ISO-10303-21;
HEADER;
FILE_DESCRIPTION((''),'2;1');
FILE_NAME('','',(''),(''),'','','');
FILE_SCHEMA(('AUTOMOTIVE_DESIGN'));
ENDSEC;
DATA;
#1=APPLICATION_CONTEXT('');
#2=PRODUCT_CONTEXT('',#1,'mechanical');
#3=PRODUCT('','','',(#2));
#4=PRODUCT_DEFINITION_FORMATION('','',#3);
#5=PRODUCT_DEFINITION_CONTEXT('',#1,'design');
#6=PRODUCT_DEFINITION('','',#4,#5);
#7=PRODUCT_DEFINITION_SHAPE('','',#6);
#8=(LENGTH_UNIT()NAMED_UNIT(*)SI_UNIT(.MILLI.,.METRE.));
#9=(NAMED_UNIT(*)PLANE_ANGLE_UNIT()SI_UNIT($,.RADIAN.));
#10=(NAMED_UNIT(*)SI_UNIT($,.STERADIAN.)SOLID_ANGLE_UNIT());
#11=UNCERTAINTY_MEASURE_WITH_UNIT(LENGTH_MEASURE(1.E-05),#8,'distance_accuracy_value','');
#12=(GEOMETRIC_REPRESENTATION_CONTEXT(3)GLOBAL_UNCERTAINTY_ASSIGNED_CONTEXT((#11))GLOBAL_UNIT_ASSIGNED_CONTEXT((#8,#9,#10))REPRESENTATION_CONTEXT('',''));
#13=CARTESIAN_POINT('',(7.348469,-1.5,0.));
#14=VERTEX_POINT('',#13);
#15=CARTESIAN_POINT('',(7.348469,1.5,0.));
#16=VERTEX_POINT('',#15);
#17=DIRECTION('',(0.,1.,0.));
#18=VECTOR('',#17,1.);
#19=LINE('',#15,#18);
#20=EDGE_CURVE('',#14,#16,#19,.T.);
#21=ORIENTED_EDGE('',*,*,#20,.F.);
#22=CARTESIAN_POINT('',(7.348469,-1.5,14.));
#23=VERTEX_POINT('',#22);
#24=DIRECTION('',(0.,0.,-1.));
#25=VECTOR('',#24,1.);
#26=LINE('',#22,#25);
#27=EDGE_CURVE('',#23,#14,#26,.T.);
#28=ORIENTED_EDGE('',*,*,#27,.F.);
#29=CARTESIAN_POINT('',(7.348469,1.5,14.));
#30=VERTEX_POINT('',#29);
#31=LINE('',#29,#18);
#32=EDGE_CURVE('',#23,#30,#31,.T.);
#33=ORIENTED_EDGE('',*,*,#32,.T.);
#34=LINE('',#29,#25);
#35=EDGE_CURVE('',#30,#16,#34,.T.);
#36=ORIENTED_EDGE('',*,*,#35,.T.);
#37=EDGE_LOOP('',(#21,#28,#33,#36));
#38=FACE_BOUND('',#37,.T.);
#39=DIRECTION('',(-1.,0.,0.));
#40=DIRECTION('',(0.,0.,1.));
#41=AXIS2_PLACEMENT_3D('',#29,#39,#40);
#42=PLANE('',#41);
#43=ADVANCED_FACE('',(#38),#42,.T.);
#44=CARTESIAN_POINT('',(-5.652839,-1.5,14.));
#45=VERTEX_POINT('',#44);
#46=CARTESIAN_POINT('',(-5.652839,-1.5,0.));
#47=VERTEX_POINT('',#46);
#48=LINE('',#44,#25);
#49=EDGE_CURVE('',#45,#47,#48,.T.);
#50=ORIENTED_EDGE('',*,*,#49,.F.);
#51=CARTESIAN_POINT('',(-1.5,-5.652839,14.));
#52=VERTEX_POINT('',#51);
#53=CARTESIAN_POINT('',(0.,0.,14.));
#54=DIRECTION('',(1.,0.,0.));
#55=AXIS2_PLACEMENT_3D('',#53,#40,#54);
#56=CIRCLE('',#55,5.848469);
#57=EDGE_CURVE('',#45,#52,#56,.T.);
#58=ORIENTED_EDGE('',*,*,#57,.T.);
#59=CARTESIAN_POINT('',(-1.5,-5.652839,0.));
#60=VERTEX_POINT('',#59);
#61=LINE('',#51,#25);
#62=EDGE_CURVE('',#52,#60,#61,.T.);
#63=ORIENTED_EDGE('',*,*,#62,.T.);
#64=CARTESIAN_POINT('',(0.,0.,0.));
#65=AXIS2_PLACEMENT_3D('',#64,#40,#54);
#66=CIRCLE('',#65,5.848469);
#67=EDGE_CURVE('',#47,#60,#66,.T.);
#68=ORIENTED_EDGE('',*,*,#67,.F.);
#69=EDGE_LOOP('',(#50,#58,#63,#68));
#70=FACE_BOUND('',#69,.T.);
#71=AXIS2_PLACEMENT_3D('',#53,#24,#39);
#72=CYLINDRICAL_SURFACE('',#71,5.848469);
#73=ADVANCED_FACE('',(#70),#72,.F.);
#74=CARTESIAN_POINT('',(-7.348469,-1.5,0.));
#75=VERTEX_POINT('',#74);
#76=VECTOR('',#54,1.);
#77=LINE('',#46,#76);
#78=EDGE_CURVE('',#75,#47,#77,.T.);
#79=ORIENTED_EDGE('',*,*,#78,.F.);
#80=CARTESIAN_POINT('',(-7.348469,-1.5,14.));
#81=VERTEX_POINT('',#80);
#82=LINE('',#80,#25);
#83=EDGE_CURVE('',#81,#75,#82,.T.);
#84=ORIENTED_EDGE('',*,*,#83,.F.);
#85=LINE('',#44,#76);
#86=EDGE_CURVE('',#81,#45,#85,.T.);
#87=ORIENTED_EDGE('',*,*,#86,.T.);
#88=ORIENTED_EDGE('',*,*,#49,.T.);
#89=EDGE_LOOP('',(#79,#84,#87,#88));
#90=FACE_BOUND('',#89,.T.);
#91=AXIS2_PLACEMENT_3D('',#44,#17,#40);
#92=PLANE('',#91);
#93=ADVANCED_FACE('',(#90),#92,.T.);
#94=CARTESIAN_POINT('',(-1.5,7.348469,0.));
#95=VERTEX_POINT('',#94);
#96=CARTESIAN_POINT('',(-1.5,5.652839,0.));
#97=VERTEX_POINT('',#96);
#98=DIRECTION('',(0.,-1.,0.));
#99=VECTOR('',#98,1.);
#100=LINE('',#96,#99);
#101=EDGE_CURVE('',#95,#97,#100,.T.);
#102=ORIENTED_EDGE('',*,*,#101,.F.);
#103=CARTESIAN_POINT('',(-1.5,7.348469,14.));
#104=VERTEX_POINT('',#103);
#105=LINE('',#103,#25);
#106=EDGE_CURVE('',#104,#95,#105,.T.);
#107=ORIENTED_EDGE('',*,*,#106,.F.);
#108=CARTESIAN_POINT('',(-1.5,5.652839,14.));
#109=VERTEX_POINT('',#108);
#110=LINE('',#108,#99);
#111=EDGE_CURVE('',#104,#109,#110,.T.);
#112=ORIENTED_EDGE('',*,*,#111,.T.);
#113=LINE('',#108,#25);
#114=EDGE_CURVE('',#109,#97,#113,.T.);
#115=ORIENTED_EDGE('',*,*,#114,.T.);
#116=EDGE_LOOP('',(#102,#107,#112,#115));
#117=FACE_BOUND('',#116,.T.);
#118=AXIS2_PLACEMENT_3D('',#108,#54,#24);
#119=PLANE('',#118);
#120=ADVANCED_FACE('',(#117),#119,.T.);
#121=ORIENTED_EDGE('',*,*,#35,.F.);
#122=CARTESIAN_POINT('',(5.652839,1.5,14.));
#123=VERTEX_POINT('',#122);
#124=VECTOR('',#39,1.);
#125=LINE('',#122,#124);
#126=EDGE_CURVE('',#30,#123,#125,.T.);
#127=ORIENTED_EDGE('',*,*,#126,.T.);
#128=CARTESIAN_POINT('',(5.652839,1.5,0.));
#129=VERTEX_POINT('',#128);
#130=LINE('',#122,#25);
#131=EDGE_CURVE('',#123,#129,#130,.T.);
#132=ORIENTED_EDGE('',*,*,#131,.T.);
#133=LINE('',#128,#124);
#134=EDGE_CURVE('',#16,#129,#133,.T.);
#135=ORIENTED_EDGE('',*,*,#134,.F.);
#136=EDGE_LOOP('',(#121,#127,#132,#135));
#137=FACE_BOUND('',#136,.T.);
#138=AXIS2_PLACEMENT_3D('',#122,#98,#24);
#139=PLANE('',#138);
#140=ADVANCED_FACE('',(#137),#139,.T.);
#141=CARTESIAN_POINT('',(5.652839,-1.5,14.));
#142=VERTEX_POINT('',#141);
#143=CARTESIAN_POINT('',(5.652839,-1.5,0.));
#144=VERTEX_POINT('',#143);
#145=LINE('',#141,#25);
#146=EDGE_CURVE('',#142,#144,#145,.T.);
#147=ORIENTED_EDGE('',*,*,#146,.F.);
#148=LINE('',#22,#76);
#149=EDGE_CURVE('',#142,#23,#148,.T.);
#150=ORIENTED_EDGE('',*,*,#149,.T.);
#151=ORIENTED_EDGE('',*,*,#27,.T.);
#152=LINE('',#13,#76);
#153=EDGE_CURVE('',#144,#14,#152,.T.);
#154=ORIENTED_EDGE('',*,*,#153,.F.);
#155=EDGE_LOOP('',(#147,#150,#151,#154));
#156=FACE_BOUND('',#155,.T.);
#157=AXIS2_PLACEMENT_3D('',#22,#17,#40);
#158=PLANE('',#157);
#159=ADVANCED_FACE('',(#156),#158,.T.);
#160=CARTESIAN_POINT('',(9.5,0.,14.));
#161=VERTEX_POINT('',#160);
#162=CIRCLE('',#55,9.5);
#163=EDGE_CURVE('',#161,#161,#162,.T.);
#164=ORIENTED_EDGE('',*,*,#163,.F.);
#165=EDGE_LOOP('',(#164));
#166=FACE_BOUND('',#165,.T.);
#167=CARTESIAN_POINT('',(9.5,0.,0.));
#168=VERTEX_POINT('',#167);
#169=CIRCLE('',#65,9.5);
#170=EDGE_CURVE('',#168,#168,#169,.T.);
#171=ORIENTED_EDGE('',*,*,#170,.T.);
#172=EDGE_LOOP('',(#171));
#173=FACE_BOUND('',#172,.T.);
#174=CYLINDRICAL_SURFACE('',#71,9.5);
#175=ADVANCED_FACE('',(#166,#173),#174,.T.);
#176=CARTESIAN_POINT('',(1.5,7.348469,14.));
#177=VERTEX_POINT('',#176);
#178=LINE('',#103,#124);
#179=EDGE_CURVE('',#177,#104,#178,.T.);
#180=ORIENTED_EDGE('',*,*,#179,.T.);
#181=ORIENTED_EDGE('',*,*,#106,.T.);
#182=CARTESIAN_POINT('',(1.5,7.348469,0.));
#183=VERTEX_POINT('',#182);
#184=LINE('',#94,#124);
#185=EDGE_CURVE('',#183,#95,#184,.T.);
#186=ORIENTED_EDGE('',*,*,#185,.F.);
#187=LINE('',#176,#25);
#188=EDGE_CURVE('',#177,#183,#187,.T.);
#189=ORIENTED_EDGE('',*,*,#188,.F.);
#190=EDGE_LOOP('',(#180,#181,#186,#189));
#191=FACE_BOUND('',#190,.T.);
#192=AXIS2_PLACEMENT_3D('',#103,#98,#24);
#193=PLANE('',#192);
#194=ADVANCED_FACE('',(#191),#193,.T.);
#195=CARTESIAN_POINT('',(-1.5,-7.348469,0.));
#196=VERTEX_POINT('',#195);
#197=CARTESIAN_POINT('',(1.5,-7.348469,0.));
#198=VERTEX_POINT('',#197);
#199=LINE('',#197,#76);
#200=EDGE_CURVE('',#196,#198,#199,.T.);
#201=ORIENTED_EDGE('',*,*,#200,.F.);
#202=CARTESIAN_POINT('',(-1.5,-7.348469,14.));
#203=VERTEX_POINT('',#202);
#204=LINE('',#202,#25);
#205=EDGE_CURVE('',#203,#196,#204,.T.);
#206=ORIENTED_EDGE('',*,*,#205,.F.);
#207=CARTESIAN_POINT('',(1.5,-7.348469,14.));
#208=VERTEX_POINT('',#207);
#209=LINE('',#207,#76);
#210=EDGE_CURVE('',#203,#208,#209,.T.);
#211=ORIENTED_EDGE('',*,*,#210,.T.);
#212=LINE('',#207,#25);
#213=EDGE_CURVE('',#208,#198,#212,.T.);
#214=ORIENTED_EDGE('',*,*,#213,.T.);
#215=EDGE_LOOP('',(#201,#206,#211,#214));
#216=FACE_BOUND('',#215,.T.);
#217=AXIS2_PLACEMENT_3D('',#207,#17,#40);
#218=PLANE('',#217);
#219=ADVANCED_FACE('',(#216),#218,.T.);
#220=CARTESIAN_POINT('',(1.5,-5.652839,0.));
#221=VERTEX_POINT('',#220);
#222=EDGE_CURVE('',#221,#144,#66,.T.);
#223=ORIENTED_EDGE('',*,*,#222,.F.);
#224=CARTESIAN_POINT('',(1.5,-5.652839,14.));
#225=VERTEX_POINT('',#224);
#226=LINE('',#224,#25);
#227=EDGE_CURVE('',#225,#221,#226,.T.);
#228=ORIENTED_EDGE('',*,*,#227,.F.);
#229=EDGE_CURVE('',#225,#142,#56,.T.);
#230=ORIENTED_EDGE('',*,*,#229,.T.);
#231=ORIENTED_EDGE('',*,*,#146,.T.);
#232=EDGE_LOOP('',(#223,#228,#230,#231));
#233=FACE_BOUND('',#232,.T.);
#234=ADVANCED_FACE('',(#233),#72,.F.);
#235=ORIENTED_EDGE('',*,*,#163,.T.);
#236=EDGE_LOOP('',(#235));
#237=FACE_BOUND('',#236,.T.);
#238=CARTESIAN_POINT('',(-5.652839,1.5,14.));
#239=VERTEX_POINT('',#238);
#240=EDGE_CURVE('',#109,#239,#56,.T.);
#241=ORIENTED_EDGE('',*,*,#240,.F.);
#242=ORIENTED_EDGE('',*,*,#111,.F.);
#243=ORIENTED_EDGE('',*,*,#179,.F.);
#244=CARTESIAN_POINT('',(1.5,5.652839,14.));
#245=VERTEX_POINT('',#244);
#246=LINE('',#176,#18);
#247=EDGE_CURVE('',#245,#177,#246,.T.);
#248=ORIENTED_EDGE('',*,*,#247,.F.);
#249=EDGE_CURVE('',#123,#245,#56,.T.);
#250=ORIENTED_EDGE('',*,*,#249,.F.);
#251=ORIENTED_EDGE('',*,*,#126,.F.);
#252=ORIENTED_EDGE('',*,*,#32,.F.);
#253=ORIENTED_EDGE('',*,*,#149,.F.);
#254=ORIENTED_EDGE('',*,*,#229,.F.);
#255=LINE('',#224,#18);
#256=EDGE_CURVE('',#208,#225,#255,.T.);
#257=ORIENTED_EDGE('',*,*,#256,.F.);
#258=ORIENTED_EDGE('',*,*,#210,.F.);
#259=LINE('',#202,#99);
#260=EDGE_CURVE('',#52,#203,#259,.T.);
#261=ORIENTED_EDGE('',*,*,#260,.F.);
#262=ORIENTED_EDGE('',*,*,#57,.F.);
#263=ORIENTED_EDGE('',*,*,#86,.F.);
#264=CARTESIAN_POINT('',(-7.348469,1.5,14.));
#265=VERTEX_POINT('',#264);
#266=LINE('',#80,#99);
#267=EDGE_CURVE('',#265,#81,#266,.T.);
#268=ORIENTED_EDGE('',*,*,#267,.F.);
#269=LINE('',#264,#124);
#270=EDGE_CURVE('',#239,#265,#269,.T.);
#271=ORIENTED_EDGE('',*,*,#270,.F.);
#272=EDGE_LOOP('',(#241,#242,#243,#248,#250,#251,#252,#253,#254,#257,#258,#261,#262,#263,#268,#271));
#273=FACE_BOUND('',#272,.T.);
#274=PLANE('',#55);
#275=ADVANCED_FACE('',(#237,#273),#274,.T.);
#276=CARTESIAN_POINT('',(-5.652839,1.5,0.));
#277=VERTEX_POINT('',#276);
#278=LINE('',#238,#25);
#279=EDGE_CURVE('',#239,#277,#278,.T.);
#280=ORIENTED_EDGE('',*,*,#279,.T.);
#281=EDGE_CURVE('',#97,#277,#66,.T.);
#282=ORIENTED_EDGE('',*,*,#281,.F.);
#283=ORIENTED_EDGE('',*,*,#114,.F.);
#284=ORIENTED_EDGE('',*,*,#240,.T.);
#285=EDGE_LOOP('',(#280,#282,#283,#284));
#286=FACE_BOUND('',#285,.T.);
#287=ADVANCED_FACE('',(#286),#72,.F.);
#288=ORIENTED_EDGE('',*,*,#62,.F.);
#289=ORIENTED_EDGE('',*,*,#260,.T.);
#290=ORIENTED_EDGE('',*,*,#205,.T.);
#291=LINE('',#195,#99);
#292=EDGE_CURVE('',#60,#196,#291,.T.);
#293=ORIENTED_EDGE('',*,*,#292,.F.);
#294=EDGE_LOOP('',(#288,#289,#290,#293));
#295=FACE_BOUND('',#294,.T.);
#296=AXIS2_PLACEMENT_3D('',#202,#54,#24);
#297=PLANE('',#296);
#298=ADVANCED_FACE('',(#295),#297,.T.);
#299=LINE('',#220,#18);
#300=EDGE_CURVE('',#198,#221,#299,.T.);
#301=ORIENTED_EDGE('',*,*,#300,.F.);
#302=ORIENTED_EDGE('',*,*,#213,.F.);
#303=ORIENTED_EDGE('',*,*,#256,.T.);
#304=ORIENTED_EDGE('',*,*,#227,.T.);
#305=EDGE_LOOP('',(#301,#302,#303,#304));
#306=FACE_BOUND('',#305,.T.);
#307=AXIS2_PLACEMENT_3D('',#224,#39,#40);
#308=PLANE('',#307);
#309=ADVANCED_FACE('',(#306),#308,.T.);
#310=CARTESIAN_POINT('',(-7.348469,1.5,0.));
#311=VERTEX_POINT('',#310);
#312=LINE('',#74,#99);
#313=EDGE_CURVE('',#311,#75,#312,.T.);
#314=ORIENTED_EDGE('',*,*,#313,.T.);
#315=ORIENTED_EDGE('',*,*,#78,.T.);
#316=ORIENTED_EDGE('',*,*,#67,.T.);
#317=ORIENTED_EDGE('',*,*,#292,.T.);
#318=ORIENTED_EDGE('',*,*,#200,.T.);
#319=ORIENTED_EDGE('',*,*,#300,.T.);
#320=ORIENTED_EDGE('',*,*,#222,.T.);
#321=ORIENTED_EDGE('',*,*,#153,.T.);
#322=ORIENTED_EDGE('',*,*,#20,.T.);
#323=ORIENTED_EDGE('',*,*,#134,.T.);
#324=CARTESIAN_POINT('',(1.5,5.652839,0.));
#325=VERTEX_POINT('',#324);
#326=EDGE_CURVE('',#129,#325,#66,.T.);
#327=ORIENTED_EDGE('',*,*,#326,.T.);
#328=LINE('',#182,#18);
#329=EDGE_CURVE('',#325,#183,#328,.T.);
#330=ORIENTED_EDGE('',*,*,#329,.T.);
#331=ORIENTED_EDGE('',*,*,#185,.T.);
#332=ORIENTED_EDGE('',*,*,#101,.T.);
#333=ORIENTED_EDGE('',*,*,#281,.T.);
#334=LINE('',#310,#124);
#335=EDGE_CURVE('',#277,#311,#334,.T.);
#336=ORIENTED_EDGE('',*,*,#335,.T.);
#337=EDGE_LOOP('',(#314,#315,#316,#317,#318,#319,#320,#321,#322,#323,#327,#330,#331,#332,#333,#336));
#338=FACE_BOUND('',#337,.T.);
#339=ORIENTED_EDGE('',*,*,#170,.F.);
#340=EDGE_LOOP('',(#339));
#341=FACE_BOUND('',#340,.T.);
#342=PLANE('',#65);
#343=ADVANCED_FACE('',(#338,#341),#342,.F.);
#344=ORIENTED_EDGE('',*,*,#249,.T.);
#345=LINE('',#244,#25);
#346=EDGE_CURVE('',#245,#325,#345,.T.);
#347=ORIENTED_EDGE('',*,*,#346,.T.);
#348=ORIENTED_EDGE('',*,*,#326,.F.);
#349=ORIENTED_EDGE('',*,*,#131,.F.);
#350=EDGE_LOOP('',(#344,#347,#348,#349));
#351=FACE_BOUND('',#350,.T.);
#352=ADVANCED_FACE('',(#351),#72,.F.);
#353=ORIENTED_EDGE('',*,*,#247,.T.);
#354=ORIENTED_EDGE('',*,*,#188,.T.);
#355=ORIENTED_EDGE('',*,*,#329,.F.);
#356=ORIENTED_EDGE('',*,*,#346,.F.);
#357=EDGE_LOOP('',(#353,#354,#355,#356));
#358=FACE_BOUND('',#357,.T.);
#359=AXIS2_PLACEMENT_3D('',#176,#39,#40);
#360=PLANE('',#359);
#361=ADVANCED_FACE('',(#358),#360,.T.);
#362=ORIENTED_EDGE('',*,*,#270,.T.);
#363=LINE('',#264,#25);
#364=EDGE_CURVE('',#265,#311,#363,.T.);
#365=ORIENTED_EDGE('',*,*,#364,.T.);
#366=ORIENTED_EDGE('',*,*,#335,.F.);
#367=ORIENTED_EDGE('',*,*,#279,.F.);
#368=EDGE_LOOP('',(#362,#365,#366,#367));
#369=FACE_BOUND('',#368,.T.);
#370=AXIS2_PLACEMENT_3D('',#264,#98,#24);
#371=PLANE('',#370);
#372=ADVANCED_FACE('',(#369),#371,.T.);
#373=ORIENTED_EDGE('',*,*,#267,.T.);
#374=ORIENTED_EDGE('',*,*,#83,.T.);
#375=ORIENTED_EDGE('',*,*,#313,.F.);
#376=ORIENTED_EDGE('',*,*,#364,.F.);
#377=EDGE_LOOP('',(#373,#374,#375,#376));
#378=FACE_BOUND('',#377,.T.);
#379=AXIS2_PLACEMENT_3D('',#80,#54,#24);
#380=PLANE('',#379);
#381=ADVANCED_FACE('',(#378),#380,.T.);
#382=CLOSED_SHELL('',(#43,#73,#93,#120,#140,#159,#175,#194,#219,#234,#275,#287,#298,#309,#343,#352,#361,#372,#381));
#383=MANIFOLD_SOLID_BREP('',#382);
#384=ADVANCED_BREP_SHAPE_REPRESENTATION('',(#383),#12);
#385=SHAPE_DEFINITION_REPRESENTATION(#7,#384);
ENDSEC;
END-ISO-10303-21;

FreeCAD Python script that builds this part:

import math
import FreeCAD as App
import Part
import Sketcher
Q = App.Units.Quantity

doc = App.newDocument("Part")
body = doc.addObject("PartDesign::Body", "Body")

sketch1 = body.newObject("Sketcher::SketchObject", "Sketch")
sketch1.AttachmentSupport = (doc.getObject("XY_Plane"), [""])
sketch1.MapMode = "FlatFace"
sketch1.addGeometry(Part.Circle(App.Vector(0, 0, 0), App.Vector(0, 0, 1), 9.5), False)
sketch1.addGeometry(Part.ArcOfCircle(Part.Circle(App.Vector(0, 0, 0), App.Vector(0, 0, 1), 5.848469), math.radians(104.861144), math.radians(165.138856)), False)
sketch1.addGeometry(Part.LineSegment(App.Vector(-1.5, 5.652839, 0), App.Vector(-1.5, 7.348469, 0)), False)
sketch1.addGeometry(Part.LineSegment(App.Vector(-1.5, 7.348469, 0), App.Vector(1.5, 7.348469, 0)), False)
sketch1.addGeometry(Part.LineSegment(App.Vector(1.5, 7.348469, 0), App.Vector(1.5, 5.652839, 0)), False)
sketch1.addGeometry(Part.ArcOfCircle(Part.Circle(App.Vector(0, 0, 0), App.Vector(0, 0, 1), 5.848469), math.radians(14.861144), math.radians(75.138856)), False)
sketch1.addGeometry(Part.LineSegment(App.Vector(5.652839, 1.5, 0), App.Vector(7.348469, 1.5, 0)), False)
sketch1.addGeometry(Part.LineSegment(App.Vector(7.348469, 1.5, 0), App.Vector(7.348469, -1.5, 0)), False)
sketch1.addGeometry(Part.LineSegment(App.Vector(7.348469, -1.5, 0), App.Vector(5.652839, -1.5, 0)), False)
sketch1.addGeometry(Part.ArcOfCircle(Part.Circle(App.Vector(0, 0, 0), App.Vector(0, 0, 1), 5.848469), math.radians(-75.138856), math.radians(-14.861144)), False)
sketch1.addGeometry(Part.LineSegment(App.Vector(1.5, -5.652839, 0), App.Vector(1.5, -7.348469, 0)), False)
sketch1.addGeometry(Part.LineSegment(App.Vector(1.5, -7.348469, 0), App.Vector(-1.5, -7.348469, 0)), False)
sketch1.addGeometry(Part.LineSegment(App.Vector(-1.5, -7.348469, 0), App.Vector(-1.5, -5.652839, 0)), False)
sketch1.addGeometry(Part.ArcOfCircle(Part.Circle(App.Vector(0, 0, 0), App.Vector(0, 0, 1), 5.848469), math.radians(-165.138856), math.radians(-104.861144)), False)
sketch1.addGeometry(Part.LineSegment(App.Vector(-5.652839, -1.5, 0), App.Vector(-7.348469, -1.5, 0)), False)
sketch1.addGeometry(Part.LineSegment(App.Vector(-7.348469, -1.5, 0), App.Vector(-7.348469, 1.5, 0)), False)
sketch1.addGeometry(Part.LineSegment(App.Vector(-7.348469, 1.5, 0), App.Vector(-5.652839, 1.5, 0)), False)
sketch1.addConstraint(Sketcher.Constraint("Coincident", 1, 1, 2, 1))
sketch1.addConstraint(Sketcher.Constraint("Coincident", 2, 2, 3, 1))
sketch1.addConstraint(Sketcher.Constraint("Coincident", 3, 2, 4, 1))
sketch1.addConstraint(Sketcher.Constraint("Coincident", 4, 2, 5, 2))
sketch1.addConstraint(Sketcher.Constraint("Coincident", 5, 1, 6, 1))
sketch1.addConstraint(Sketcher.Constraint("Coincident", 6, 2, 7, 1))
sketch1.addConstraint(Sketcher.Constraint("Coincident", 7, 2, 8, 1))
sketch1.addConstraint(Sketcher.Constraint("Coincident", 8, 2, 9, 2))
sketch1.addConstraint(Sketcher.Constraint("Coincident", 9, 1, 10, 1))
sketch1.addConstraint(Sketcher.Constraint("Coincident", 10, 2, 11, 1))
sketch1.addConstraint(Sketcher.Constraint("Coincident", 11, 2, 12, 1))
sketch1.addConstraint(Sketcher.Constraint("Coincident", 12, 2, 13, 2))
sketch1.addConstraint(Sketcher.Constraint("Coincident", 13, 1, 14, 1))
sketch1.addConstraint(Sketcher.Constraint("Coincident", 14, 2, 15, 1))
sketch1.addConstraint(Sketcher.Constraint("Coincident", 15, 2, 16, 1))
sketch1.addConstraint(Sketcher.Constraint("Coincident", 16, 2, 1, 2))
sketch1.addConstraint(Sketcher.Constraint("Vertical", 2))
sketch1.addConstraint(Sketcher.Constraint("Horizontal", 3))
sketch1.addConstraint(Sketcher.Constraint("Vertical", 4))
sketch1.addConstraint(Sketcher.Constraint("Horizontal", 6))
sketch1.addConstraint(Sketcher.Constraint("Vertical", 7))
sketch1.addConstraint(Sketcher.Constraint("Horizontal", 8))
sketch1.addConstraint(Sketcher.Constraint("Vertical", 10))
sketch1.addConstraint(Sketcher.Constraint("Horizontal", 11))
sketch1.addConstraint(Sketcher.Constraint("Vertical", 12))
sketch1.addConstraint(Sketcher.Constraint("Horizontal", 14))
sketch1.addConstraint(Sketcher.Constraint("Vertical", 15))
sketch1.addConstraint(Sketcher.Constraint("Horizontal", 16))
sketch1.addConstraint(Sketcher.Constraint("Coincident", 0, 3, -1, 1))
sketch1.addConstraint(Sketcher.Constraint("Coincident", 1, 3, -1, 1))
sketch1.addConstraint(Sketcher.Constraint("Coincident", 5, 3, -1, 1))
sketch1.addConstraint(Sketcher.Constraint("Coincident", 9, 3, -1, 1))
sketch1.addConstraint(Sketcher.Constraint("Coincident", 13, 3, -1, 1))
sketch1.addConstraint(Sketcher.Constraint("Equal", 1, 5))
sketch1.addConstraint(Sketcher.Constraint("Equal", 5, 9))
sketch1.addConstraint(Sketcher.Constraint("Equal", 9, 13))
sketch1.addConstraint(Sketcher.Constraint("Symmetric", 2, 2, 10, 2, -1, 1))
sketch1.addConstraint(Sketcher.Constraint("Symmetric", 6, 2, 14, 2, -1, 1))
sketch1.addConstraint(Sketcher.Constraint("Horizontal", 1, 1, 4, 2))
sketch1.addConstraint(Sketcher.Constraint("Horizontal", 9, 1, 12, 2))
sketch1.addConstraint(Sketcher.Constraint("Horizontal", 8, 2, 13, 1))
sketch1.addConstraint(Sketcher.Constraint("Horizontal", 6, 2, 15, 2))
sketch1.addConstraint(Sketcher.Constraint("Equal", 16, 2))
sketch1.addConstraint(Sketcher.Constraint("Equal", 11, 7))
sketch1.addConstraint(Sketcher.Constraint("Diameter", 0, Q("19 mm")))
sketch1.addConstraint(Sketcher.Constraint("DistanceX", 3, 1, 3, 2, Q("3 mm")))
sketch1.addConstraint(Sketcher.Constraint("Radius", 1, Q("5.848469 mm")))
sketch1.addConstraint(Sketcher.Constraint("DistanceX", 6, 1, 6, 2, Q("1.69563 mm")))
pad1 = body.newObject("PartDesign::Pad", "Pad")
pad1.Profile = sketch1
pad1.Length = 14

doc.recompute()
